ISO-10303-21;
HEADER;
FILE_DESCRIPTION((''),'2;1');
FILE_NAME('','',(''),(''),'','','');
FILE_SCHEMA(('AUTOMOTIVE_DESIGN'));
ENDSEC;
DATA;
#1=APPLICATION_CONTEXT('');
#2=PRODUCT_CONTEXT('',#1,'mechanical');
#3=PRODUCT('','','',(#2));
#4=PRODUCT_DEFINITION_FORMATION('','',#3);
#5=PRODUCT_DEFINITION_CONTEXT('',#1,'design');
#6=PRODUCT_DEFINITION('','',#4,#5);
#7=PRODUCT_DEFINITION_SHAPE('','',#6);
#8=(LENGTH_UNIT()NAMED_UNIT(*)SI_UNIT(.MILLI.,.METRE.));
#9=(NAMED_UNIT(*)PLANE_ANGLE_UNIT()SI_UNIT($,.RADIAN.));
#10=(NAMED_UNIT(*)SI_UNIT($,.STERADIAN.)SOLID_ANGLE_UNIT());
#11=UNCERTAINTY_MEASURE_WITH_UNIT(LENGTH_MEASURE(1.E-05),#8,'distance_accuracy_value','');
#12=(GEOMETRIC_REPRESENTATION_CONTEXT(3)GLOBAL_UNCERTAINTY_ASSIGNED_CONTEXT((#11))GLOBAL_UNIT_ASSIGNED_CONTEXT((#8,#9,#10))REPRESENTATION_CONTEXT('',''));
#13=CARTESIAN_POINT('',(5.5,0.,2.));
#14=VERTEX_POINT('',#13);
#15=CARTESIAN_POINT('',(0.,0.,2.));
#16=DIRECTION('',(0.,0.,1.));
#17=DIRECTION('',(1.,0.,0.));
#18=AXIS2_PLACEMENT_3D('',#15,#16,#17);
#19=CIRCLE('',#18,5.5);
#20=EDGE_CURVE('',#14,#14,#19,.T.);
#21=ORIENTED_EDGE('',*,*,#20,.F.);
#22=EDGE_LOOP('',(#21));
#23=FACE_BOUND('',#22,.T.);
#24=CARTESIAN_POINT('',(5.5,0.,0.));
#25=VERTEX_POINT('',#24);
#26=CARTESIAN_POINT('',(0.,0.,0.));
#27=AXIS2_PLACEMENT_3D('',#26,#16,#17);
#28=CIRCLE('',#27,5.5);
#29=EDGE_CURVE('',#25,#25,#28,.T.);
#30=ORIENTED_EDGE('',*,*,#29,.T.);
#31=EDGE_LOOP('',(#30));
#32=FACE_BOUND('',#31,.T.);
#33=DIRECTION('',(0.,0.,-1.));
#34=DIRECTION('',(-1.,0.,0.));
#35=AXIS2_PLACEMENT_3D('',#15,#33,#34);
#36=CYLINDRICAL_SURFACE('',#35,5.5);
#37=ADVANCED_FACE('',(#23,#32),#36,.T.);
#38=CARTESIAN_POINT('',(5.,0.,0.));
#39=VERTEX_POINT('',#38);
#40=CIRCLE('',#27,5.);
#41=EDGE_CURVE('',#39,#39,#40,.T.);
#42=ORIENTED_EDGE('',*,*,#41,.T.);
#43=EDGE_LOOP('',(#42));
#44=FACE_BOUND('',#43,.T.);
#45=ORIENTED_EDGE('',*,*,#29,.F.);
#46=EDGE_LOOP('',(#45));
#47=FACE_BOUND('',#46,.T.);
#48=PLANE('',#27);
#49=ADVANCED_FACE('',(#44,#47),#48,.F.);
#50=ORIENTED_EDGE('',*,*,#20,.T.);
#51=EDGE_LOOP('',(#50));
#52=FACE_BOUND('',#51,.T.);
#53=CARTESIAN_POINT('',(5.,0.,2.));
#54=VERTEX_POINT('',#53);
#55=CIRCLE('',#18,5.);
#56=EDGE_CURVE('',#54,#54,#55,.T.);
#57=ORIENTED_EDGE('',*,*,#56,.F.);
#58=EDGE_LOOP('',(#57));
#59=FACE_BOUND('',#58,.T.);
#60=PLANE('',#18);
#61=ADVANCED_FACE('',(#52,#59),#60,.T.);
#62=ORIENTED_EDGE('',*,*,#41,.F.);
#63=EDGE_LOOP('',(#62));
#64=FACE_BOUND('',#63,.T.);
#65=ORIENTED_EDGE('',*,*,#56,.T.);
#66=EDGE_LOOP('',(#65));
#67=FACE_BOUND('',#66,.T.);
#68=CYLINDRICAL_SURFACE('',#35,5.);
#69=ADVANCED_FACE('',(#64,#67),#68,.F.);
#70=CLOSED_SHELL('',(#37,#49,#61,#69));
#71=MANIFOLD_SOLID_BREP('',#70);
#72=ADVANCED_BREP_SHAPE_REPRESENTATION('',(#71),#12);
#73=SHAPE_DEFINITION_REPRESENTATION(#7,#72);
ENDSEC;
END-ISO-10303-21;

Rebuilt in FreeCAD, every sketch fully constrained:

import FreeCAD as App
import Part
import Sketcher

V = App.Vector

doc = App.newDocument("Part")
body = doc.addObject("PartDesign::Body", "Body")

# Sketch on XY plane
sketch1 = body.newObject("Sketcher::SketchObject", "Sketch")
sketch1.AttachmentSupport = (doc.getObject("XY_Plane"), [""])
sketch1.MapMode = "FlatFace"
sketch1.addGeometry([
    Part.Circle(V(0, 0, 0), V(0, 0, 1), 6),
    Part.Circle(V(0, 0, 0), V(0, 0, 1), 5),
], False)
sketch1.addConstraint([
    Sketcher.Constraint("Coincident", 0, 3, -1, 1),
    Sketcher.Constraint("Coincident", 1, 3, -1, 1),
    Sketcher.Constraint("Diameter", 0, 11.0),
    Sketcher.Constraint("Diameter", 1, 10.0),
])
pad1 = body.newObject("PartDesign::Pad", "Pad")
pad1.Profile = sketch1
pad1.Length = 2

doc.recompute()
